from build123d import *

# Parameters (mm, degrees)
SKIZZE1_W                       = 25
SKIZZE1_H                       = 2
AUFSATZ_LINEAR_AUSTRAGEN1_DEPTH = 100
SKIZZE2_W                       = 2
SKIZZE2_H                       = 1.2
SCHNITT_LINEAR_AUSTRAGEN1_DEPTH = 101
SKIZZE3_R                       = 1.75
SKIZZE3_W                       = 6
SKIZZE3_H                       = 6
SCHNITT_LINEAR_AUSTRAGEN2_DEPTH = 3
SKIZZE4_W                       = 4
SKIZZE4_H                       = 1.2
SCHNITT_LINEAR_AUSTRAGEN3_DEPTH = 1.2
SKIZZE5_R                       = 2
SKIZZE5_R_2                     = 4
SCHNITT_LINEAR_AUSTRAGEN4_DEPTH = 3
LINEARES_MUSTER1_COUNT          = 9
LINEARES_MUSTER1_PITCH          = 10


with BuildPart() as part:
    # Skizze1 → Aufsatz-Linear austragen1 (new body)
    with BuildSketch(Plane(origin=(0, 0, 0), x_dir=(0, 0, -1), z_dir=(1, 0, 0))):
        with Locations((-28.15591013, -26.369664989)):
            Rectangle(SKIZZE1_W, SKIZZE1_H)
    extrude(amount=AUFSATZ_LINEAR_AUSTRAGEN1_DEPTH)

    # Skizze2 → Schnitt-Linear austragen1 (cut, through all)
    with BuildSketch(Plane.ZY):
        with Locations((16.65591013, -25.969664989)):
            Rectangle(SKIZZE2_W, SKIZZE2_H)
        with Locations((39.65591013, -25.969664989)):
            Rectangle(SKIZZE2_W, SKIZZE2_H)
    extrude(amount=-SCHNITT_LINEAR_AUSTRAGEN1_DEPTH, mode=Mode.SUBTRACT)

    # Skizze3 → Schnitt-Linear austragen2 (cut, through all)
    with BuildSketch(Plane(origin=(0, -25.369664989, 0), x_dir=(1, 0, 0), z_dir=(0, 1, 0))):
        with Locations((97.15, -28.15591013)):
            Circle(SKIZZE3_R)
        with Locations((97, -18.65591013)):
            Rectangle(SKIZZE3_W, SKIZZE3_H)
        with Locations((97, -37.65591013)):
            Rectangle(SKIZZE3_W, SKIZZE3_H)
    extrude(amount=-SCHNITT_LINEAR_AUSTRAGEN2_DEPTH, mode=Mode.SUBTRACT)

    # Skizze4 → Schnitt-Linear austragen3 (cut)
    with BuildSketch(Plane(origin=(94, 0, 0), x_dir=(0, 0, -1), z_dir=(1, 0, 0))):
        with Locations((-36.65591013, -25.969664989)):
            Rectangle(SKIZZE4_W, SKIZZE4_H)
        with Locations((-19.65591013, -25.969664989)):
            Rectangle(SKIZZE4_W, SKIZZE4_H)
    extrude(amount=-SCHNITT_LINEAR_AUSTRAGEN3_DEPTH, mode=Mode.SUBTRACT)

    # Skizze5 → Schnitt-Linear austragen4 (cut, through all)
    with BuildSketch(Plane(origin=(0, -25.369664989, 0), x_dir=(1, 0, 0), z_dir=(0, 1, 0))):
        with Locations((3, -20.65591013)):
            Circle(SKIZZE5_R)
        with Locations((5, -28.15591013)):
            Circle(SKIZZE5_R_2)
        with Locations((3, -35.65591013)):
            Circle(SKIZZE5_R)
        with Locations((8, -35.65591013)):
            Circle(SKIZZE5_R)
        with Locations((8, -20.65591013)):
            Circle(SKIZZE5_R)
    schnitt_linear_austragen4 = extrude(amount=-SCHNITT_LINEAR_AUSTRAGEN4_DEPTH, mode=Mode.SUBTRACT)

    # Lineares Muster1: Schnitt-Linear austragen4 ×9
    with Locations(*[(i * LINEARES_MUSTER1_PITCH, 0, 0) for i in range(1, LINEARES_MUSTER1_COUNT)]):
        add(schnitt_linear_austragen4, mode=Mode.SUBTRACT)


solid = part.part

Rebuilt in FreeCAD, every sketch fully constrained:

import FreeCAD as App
import Part
import Sketcher

doc = App.newDocument("Part")
body = doc.addObject("PartDesign::Body", "Body")

sketch1 = body.newObject("Sketcher::SketchObject", "Sketch")
sketch1.AttachmentSupport = (doc.getObject("YZ_Plane"), [""])
sketch1.MapMode = "FlatFace"
sketch1.addGeometry([
    Part.LineSegment(App.Vector(-25.369665, 40.65591, 0), App.Vector(-27.369665, 40.65591, 0)),
    Part.LineSegment(App.Vector(-27.369665, 40.65591, 0), App.Vector(-27.369665, 15.65591, 0)),
    Part.LineSegment(App.Vector(-27.369665, 15.65591, 0), App.Vector(-25.369665, 15.65591, 0)),
    Part.LineSegment(App.Vector(-25.369665, 15.65591, 0), App.Vector(-25.369665, 40.65591, 0)),
], False)
sketch1.addConstraint([
    Sketcher.Constraint("Coincident", 0, 2, 1, 1),
    Sketcher.Constraint("Coincident", 1, 2, 2, 1),
    Sketcher.Constraint("Coincident", 2, 2, 3, 1),
    Sketcher.Constraint("Coincident", 3, 2, 0, 1),
    Sketcher.Constraint("Horizontal", 0),
    Sketcher.Constraint("Vertical", 1),
    Sketcher.Constraint("Horizontal", 2),
    Sketcher.Constraint("Vertical", 3),
    Sketcher.Constraint("DistanceX", 0, 2, 0, 1, 2.0),
    Sketcher.Constraint("DistanceY", 1, 2, 1, 1, 25.0),
    Sketcher.Constraint("DistanceY", -1, 1, 0, 2, 40.65591),
    Sketcher.Constraint("DistanceX", 0, 2, -1, 1, 27.369665),
])
pad1 = body.newObject("PartDesign::Pad", "Pad")
pad1.Profile = sketch1
pad1.Length = 100

sketch2 = body.newObject("Sketcher::SketchObject", "Sketch001")
sketch2.AttachmentSupport = (doc.getObject("YZ_Plane"), [""])
sketch2.MapMode = "FlatFace"
sketch2.addGeometry([
    Part.LineSegment(App.Vector(-25.369665, 15.65591, 0), App.Vector(-26.569665, 15.65591, 0)),
    Part.LineSegment(App.Vector(-26.569665, 15.65591, 0), App.Vector(-26.569665, 17.65591, 0)),
    Part.LineSegment(App.Vector(-26.569665, 17.65591, 0), App.Vector(-25.369665, 17.65591, 0)),
    Part.LineSegment(App.Vector(-25.369665, 17.65591, 0), App.Vector(-25.369665, 15.65591, 0)),
    Part.LineSegment(App.Vector(-25.369665, 38.65591, 0), App.Vector(-26.569665, 38.65591, 0)),
    Part.LineSegment(App.Vector(-26.569665, 38.65591, 0), App.Vector(-26.569665, 40.65591, 0)),
    Part.LineSegment(App.Vector(-26.569665, 40.65591, 0), App.Vector(-25.369665, 40.65591, 0)),
    Part.LineSegment(App.Vector(-25.369665, 40.65591, 0), App.Vector(-25.369665, 38.65591, 0)),
], False)
sketch2.addConstraint([
    Sketcher.Constraint("Coincident", 0, 2, 1, 1),
    Sketcher.Constraint("Coincident", 1, 2, 2, 1),
    Sketcher.Constraint("Coincident", 2, 2, 3, 1),
    Sketcher.Constraint("Coincident", 3, 2, 0, 1),
    Sketcher.Constraint("Coincident", 4, 2, 5, 1),
    Sketcher.Constraint("Coincident", 5, 2, 6, 1),
    Sketcher.Constraint("Coincident", 6, 2, 7, 1),
    Sketcher.Constraint("Coincident", 7, 2, 4, 1),
    Sketcher.Constraint("Horizontal", 0),
    Sketcher.Constraint("Vertical", 1),
    Sketcher.Constraint("Horizontal", 2),
    Sketcher.Constraint("Vertical", 3),
    Sketcher.Constraint("Horizontal", 4),
    Sketcher.Constraint("Vertical", 5),
    Sketcher.Constraint("Horizontal", 6),
    Sketcher.Constraint("Vertical", 7),
    Sketcher.Constraint("Vertical", 1, 2, 4, 2),
    Sketcher.Constraint("Vertical", 3, 2, 6, 2),
    Sketcher.Constraint("Equal", 3, 5),
    Sketcher.Constraint("DistanceY", 1, 1, 1, 2, 2.0),
    Sketcher.Constraint("DistanceX", 0, 2, 0, 1, 1.2),
    Sketcher.Constraint("DistanceY", 1, 2, 4, 2, 21.0),
    Sketcher.Constraint("DistanceY", -1, 1, 0, 2, 15.65591),
    Sketcher.Constraint("DistanceX", 0, 2, -1, 1, 26.569665),
])
pocket1 = body.newObject("PartDesign::Pocket", "Pocket")
pocket1.Profile = sketch2
pocket1.Type = "ThroughAll"
pocket1.Reversed = True

sketch3 = body.newObject("Sketcher::SketchObject", "Sketch002")
sketch3.AttachmentSupport = (doc.getObject("XZ_Plane"), [""])
sketch3.MapMode = "FlatFace"
sketch3.AttachmentOffset = App.Placement(App.Vector(0, 0, 25.369665), App.Rotation())
sketch3.addGeometry([
    Part.Circle(App.Vector(97.15, 28.15591, 0), App.Vector(0, 0, 1), 1.75),
    Part.LineSegment(App.Vector(94, 15.65591, 0), App.Vector(94, 21.65591, 0)),
    Part.LineSegment(App.Vector(94, 21.65591, 0), App.Vector(100, 21.65591, 0)),
    Part.LineSegment(App.Vector(100, 21.65591, 0), App.Vector(100, 15.65591, 0)),
    Part.LineSegment(App.Vector(100, 15.65591, 0), App.Vector(94, 15.65591, 0)),
    Part.LineSegment(App.Vector(94, 34.65591, 0), App.Vector(94, 40.65591, 0)),
    Part.LineSegment(App.Vector(94, 40.65591, 0), App.Vector(100, 40.65591, 0)),
    Part.LineSegment(App.Vector(100, 40.65591, 0), App.Vector(100, 34.65591, 0)),
    Part.LineSegment(App.Vector(100, 34.65591, 0), App.Vector(94, 34.65591, 0)),
], False)
sketch3.addConstraint([
    Sketcher.Constraint("Coincident", 1, 2, 2, 1),
    Sketcher.Constraint("Coincident", 2, 2, 3, 1),
    Sketcher.Constraint("Coincident", 3, 2, 4, 1),
    Sketcher.Constraint("Coincident", 4, 2, 1, 1),
    Sketcher.Constraint("Coincident", 5, 2, 6, 1),
    Sketcher.Constraint("Coincident", 6, 2, 7, 1),
    Sketcher.Constraint("Coincident", 7, 2, 8, 1),
    Sketcher.Constraint("Coincident", 8, 2, 5, 1),
    Sketcher.Constraint("Vertical", 1),
    Sketcher.Constraint("Horizontal", 2),
    Sketcher.Constraint("Vertical", 3),
    Sketcher.Constraint("Horizontal", 4),
    Sketcher.Constraint("Vertical", 5),
    Sketcher.Constraint("Horizontal", 6),
    Sketcher.Constraint("Vertical", 7),
    Sketcher.Constraint("Horizontal", 8),
    Sketcher.Constraint("Vertical", 4, 2, 5, 2),
    Sketcher.Constraint("Vertical", 3, 2, 6, 2),
    Sketcher.Constraint("Equal", 8, 1),
    Sketcher.Constraint("Equal", 3, 5),
    Sketcher.Constraint("Diameter", 0, 3.5),
    Sketcher.Constraint("DistanceX", 2, 1, 2, 2, 6.0),
    Sketcher.Constraint("DistanceX", -1, 1, 1, 2, 94.0),
    Sketcher.Constraint("DistanceY", 1, 2, 5, 2, 19.0),
    Sketcher.Constraint("DistanceY", 1, 2, 0, 3, 6.5),
    Sketcher.Constraint("DistanceX", -1, 1, 0, 3, 97.15),
    Sketcher.Constraint("DistanceY", -1, 1, 0, 3, 28.15591),
])
pocket2 = body.newObject("PartDesign::Pocket", "Pocket001")
pocket2.Profile = sketch3
pocket2.Type = "ThroughAll"
pocket2.Reversed = True

sketch4 = body.newObject("Sketcher::SketchObject", "Sketch003")
sketch4.AttachmentSupport = (doc.getObject("YZ_Plane"), [""])
sketch4.MapMode = "FlatFace"
sketch4.AttachmentOffset = App.Placement(App.Vector(0, 0, 94), App.Rotation())
sketch4.addGeometry([
    Part.LineSegment(App.Vector(-25.369665, 38.65591, 0), App.Vector(-26.569665, 38.65591, 0)),
    Part.LineSegment(App.Vector(-26.569665, 38.65591, 0), App.Vector(-26.569665, 34.65591, 0)),
    Part.LineSegment(App.Vector(-26.569665, 34.65591, 0), App.Vector(-25.369665, 34.65591, 0)),
    Part.LineSegment(App.Vector(-25.369665, 34.65591, 0), App.Vector(-25.369665, 38.65591, 0)),
    Part.LineSegment(App.Vector(-25.369665, 21.65591, 0), App.Vector(-26.569665, 21.65591, 0)),
    Part.LineSegment(App.Vector(-26.569665, 21.65591, 0), App.Vector(-26.569665, 17.65591, 0)),
    Part.LineSegment(App.Vector(-26.569665, 17.65591, 0), App.Vector(-25.369665, 17.65591, 0)),
    Part.LineSegment(App.Vector(-25.369665, 17.65591, 0), App.Vector(-25.369665, 21.65591, 0)),
], False)
sketch4.addConstraint([
    Sketcher.Constraint("Coincident", 0, 2, 1, 1),
    Sketcher.Constraint("Coincident", 1, 2, 2, 1),
    Sketcher.Constraint("Coincident", 2, 2, 3, 1),
    Sketcher.Constraint("Coincident", 3, 2, 0, 1),
    Sketcher.Constraint("Coincident", 4, 2, 5, 1),
    Sketcher.Constraint("Coincident", 5, 2, 6, 1),
    Sketcher.Constraint("Coincident", 6, 2, 7, 1),
    Sketcher.Constraint("Coincident", 7, 2, 4, 1),
    Sketcher.Constraint("Horizontal", 0),
    Sketcher.Constraint("Vertical", 1),
    Sketcher.Constraint("Horizontal", 2),
    Sketcher.Constraint("Vertical", 3),
    Sketcher.Constraint("Horizontal", 4),
    Sketcher.Constraint("Vertical", 5),
    Sketcher.Constraint("Horizontal", 6),
    Sketcher.Constraint("Vertical", 7),
    Sketcher.Constraint("Vertical", 1, 2, 4, 2),
    Sketcher.Constraint("Vertical", 3, 2, 6, 2),
    Sketcher.Constraint("Equal", 3, 5),
    Sketcher.Constraint("DistanceY", 1, 2, 1, 1, 4.0),
    Sketcher.Constraint("DistanceX", 0, 2, 0, 1, 1.2),
    Sketcher.Constraint("DistanceY", 4, 2, 1, 2, 13.0),
    Sketcher.Constraint("DistanceY", -1, 1, 0, 2, 38.65591),
    Sketcher.Constraint("DistanceX", 0, 2, -1, 1, 26.569665),
])
pocket3 = body.newObject("PartDesign::Pocket", "Pocket002")
pocket3.Profile = sketch4
pocket3.Length = 1.2

sketch5 = body.newObject("Sketcher::SketchObject", "Sketch004")
sketch5.AttachmentSupport = (doc.getObject("XZ_Plane"), [""])
sketch5.MapMode = "FlatFace"
sketch5.AttachmentOffset = App.Placement(App.Vector(0, 0, 25.369665), App.Rotation())
sketch5.addGeometry([
    Part.Circle(App.Vector(3, 20.65591, 0), App.Vector(0, 0, 1), 2),
    Part.Circle(App.Vector(5, 28.15591, 0), App.Vector(0, 0, 1), 4),
    Part.Circle(App.Vector(3, 35.65591, 0), App.Vector(0, 0, 1), 2),
    Part.Circle(App.Vector(8, 35.65591, 0), App.Vector(0, 0, 1), 2),
    Part.Circle(App.Vector(8, 20.65591, 0), App.Vector(0, 0, 1), 2),
], False)
sketch5.addConstraint([
    Sketcher.Constraint("Equal", 0, 2),
    Sketcher.Constraint("Equal", 2, 3),
    Sketcher.Constraint("Equal", 3, 4),
    Sketcher.Constraint("Horizontal", 2, 3, 3, 3),
    Sketcher.Constraint("Horizontal", 0, 3, 4, 3),
    Sketcher.Constraint("Vertical", 0, 3, 2, 3),
    Sketcher.Constraint("Vertical", 3, 3, 4, 3),
    Sketcher.Constraint("Diameter", 0, 4.0),
    Sketcher.Constraint("Diameter", 1, 8.0),
    Sketcher.Constraint("DistanceX", -1, 1, 0, 3, 3.0),
    Sketcher.Constraint("DistanceX", -1, 1, 1, 3, 5.0),
    Sketcher.Constraint("DistanceX", -1, 1, 3, 3, 8.0),
    Sketcher.Constraint("DistanceY", 0, 3, 2, 3, 15.0),
    Sketcher.Constraint("DistanceY", 0, 3, 1, 3, 7.5),
    Sketcher.Constraint("DistanceY", -1, 1, 0, 3, 20.65591),
])
pocket4 = body.newObject("PartDesign::Pocket", "Pocket003")
pocket4.Profile = sketch5
pocket4.Type = "ThroughAll"
pocket4.Reversed = True
doc.recompute()

linearpattern = body.newObject("PartDesign::LinearPattern", "LinearPattern")
linearpattern.Originals = [pocket4]
linearpattern.Direction = (doc.getObject("X_Axis"), [""])
linearpattern.Mode = "offset"
linearpattern.Offset = 10
linearpattern.Occurrences = 9
body.Tip = linearpattern

doc.recompute()
